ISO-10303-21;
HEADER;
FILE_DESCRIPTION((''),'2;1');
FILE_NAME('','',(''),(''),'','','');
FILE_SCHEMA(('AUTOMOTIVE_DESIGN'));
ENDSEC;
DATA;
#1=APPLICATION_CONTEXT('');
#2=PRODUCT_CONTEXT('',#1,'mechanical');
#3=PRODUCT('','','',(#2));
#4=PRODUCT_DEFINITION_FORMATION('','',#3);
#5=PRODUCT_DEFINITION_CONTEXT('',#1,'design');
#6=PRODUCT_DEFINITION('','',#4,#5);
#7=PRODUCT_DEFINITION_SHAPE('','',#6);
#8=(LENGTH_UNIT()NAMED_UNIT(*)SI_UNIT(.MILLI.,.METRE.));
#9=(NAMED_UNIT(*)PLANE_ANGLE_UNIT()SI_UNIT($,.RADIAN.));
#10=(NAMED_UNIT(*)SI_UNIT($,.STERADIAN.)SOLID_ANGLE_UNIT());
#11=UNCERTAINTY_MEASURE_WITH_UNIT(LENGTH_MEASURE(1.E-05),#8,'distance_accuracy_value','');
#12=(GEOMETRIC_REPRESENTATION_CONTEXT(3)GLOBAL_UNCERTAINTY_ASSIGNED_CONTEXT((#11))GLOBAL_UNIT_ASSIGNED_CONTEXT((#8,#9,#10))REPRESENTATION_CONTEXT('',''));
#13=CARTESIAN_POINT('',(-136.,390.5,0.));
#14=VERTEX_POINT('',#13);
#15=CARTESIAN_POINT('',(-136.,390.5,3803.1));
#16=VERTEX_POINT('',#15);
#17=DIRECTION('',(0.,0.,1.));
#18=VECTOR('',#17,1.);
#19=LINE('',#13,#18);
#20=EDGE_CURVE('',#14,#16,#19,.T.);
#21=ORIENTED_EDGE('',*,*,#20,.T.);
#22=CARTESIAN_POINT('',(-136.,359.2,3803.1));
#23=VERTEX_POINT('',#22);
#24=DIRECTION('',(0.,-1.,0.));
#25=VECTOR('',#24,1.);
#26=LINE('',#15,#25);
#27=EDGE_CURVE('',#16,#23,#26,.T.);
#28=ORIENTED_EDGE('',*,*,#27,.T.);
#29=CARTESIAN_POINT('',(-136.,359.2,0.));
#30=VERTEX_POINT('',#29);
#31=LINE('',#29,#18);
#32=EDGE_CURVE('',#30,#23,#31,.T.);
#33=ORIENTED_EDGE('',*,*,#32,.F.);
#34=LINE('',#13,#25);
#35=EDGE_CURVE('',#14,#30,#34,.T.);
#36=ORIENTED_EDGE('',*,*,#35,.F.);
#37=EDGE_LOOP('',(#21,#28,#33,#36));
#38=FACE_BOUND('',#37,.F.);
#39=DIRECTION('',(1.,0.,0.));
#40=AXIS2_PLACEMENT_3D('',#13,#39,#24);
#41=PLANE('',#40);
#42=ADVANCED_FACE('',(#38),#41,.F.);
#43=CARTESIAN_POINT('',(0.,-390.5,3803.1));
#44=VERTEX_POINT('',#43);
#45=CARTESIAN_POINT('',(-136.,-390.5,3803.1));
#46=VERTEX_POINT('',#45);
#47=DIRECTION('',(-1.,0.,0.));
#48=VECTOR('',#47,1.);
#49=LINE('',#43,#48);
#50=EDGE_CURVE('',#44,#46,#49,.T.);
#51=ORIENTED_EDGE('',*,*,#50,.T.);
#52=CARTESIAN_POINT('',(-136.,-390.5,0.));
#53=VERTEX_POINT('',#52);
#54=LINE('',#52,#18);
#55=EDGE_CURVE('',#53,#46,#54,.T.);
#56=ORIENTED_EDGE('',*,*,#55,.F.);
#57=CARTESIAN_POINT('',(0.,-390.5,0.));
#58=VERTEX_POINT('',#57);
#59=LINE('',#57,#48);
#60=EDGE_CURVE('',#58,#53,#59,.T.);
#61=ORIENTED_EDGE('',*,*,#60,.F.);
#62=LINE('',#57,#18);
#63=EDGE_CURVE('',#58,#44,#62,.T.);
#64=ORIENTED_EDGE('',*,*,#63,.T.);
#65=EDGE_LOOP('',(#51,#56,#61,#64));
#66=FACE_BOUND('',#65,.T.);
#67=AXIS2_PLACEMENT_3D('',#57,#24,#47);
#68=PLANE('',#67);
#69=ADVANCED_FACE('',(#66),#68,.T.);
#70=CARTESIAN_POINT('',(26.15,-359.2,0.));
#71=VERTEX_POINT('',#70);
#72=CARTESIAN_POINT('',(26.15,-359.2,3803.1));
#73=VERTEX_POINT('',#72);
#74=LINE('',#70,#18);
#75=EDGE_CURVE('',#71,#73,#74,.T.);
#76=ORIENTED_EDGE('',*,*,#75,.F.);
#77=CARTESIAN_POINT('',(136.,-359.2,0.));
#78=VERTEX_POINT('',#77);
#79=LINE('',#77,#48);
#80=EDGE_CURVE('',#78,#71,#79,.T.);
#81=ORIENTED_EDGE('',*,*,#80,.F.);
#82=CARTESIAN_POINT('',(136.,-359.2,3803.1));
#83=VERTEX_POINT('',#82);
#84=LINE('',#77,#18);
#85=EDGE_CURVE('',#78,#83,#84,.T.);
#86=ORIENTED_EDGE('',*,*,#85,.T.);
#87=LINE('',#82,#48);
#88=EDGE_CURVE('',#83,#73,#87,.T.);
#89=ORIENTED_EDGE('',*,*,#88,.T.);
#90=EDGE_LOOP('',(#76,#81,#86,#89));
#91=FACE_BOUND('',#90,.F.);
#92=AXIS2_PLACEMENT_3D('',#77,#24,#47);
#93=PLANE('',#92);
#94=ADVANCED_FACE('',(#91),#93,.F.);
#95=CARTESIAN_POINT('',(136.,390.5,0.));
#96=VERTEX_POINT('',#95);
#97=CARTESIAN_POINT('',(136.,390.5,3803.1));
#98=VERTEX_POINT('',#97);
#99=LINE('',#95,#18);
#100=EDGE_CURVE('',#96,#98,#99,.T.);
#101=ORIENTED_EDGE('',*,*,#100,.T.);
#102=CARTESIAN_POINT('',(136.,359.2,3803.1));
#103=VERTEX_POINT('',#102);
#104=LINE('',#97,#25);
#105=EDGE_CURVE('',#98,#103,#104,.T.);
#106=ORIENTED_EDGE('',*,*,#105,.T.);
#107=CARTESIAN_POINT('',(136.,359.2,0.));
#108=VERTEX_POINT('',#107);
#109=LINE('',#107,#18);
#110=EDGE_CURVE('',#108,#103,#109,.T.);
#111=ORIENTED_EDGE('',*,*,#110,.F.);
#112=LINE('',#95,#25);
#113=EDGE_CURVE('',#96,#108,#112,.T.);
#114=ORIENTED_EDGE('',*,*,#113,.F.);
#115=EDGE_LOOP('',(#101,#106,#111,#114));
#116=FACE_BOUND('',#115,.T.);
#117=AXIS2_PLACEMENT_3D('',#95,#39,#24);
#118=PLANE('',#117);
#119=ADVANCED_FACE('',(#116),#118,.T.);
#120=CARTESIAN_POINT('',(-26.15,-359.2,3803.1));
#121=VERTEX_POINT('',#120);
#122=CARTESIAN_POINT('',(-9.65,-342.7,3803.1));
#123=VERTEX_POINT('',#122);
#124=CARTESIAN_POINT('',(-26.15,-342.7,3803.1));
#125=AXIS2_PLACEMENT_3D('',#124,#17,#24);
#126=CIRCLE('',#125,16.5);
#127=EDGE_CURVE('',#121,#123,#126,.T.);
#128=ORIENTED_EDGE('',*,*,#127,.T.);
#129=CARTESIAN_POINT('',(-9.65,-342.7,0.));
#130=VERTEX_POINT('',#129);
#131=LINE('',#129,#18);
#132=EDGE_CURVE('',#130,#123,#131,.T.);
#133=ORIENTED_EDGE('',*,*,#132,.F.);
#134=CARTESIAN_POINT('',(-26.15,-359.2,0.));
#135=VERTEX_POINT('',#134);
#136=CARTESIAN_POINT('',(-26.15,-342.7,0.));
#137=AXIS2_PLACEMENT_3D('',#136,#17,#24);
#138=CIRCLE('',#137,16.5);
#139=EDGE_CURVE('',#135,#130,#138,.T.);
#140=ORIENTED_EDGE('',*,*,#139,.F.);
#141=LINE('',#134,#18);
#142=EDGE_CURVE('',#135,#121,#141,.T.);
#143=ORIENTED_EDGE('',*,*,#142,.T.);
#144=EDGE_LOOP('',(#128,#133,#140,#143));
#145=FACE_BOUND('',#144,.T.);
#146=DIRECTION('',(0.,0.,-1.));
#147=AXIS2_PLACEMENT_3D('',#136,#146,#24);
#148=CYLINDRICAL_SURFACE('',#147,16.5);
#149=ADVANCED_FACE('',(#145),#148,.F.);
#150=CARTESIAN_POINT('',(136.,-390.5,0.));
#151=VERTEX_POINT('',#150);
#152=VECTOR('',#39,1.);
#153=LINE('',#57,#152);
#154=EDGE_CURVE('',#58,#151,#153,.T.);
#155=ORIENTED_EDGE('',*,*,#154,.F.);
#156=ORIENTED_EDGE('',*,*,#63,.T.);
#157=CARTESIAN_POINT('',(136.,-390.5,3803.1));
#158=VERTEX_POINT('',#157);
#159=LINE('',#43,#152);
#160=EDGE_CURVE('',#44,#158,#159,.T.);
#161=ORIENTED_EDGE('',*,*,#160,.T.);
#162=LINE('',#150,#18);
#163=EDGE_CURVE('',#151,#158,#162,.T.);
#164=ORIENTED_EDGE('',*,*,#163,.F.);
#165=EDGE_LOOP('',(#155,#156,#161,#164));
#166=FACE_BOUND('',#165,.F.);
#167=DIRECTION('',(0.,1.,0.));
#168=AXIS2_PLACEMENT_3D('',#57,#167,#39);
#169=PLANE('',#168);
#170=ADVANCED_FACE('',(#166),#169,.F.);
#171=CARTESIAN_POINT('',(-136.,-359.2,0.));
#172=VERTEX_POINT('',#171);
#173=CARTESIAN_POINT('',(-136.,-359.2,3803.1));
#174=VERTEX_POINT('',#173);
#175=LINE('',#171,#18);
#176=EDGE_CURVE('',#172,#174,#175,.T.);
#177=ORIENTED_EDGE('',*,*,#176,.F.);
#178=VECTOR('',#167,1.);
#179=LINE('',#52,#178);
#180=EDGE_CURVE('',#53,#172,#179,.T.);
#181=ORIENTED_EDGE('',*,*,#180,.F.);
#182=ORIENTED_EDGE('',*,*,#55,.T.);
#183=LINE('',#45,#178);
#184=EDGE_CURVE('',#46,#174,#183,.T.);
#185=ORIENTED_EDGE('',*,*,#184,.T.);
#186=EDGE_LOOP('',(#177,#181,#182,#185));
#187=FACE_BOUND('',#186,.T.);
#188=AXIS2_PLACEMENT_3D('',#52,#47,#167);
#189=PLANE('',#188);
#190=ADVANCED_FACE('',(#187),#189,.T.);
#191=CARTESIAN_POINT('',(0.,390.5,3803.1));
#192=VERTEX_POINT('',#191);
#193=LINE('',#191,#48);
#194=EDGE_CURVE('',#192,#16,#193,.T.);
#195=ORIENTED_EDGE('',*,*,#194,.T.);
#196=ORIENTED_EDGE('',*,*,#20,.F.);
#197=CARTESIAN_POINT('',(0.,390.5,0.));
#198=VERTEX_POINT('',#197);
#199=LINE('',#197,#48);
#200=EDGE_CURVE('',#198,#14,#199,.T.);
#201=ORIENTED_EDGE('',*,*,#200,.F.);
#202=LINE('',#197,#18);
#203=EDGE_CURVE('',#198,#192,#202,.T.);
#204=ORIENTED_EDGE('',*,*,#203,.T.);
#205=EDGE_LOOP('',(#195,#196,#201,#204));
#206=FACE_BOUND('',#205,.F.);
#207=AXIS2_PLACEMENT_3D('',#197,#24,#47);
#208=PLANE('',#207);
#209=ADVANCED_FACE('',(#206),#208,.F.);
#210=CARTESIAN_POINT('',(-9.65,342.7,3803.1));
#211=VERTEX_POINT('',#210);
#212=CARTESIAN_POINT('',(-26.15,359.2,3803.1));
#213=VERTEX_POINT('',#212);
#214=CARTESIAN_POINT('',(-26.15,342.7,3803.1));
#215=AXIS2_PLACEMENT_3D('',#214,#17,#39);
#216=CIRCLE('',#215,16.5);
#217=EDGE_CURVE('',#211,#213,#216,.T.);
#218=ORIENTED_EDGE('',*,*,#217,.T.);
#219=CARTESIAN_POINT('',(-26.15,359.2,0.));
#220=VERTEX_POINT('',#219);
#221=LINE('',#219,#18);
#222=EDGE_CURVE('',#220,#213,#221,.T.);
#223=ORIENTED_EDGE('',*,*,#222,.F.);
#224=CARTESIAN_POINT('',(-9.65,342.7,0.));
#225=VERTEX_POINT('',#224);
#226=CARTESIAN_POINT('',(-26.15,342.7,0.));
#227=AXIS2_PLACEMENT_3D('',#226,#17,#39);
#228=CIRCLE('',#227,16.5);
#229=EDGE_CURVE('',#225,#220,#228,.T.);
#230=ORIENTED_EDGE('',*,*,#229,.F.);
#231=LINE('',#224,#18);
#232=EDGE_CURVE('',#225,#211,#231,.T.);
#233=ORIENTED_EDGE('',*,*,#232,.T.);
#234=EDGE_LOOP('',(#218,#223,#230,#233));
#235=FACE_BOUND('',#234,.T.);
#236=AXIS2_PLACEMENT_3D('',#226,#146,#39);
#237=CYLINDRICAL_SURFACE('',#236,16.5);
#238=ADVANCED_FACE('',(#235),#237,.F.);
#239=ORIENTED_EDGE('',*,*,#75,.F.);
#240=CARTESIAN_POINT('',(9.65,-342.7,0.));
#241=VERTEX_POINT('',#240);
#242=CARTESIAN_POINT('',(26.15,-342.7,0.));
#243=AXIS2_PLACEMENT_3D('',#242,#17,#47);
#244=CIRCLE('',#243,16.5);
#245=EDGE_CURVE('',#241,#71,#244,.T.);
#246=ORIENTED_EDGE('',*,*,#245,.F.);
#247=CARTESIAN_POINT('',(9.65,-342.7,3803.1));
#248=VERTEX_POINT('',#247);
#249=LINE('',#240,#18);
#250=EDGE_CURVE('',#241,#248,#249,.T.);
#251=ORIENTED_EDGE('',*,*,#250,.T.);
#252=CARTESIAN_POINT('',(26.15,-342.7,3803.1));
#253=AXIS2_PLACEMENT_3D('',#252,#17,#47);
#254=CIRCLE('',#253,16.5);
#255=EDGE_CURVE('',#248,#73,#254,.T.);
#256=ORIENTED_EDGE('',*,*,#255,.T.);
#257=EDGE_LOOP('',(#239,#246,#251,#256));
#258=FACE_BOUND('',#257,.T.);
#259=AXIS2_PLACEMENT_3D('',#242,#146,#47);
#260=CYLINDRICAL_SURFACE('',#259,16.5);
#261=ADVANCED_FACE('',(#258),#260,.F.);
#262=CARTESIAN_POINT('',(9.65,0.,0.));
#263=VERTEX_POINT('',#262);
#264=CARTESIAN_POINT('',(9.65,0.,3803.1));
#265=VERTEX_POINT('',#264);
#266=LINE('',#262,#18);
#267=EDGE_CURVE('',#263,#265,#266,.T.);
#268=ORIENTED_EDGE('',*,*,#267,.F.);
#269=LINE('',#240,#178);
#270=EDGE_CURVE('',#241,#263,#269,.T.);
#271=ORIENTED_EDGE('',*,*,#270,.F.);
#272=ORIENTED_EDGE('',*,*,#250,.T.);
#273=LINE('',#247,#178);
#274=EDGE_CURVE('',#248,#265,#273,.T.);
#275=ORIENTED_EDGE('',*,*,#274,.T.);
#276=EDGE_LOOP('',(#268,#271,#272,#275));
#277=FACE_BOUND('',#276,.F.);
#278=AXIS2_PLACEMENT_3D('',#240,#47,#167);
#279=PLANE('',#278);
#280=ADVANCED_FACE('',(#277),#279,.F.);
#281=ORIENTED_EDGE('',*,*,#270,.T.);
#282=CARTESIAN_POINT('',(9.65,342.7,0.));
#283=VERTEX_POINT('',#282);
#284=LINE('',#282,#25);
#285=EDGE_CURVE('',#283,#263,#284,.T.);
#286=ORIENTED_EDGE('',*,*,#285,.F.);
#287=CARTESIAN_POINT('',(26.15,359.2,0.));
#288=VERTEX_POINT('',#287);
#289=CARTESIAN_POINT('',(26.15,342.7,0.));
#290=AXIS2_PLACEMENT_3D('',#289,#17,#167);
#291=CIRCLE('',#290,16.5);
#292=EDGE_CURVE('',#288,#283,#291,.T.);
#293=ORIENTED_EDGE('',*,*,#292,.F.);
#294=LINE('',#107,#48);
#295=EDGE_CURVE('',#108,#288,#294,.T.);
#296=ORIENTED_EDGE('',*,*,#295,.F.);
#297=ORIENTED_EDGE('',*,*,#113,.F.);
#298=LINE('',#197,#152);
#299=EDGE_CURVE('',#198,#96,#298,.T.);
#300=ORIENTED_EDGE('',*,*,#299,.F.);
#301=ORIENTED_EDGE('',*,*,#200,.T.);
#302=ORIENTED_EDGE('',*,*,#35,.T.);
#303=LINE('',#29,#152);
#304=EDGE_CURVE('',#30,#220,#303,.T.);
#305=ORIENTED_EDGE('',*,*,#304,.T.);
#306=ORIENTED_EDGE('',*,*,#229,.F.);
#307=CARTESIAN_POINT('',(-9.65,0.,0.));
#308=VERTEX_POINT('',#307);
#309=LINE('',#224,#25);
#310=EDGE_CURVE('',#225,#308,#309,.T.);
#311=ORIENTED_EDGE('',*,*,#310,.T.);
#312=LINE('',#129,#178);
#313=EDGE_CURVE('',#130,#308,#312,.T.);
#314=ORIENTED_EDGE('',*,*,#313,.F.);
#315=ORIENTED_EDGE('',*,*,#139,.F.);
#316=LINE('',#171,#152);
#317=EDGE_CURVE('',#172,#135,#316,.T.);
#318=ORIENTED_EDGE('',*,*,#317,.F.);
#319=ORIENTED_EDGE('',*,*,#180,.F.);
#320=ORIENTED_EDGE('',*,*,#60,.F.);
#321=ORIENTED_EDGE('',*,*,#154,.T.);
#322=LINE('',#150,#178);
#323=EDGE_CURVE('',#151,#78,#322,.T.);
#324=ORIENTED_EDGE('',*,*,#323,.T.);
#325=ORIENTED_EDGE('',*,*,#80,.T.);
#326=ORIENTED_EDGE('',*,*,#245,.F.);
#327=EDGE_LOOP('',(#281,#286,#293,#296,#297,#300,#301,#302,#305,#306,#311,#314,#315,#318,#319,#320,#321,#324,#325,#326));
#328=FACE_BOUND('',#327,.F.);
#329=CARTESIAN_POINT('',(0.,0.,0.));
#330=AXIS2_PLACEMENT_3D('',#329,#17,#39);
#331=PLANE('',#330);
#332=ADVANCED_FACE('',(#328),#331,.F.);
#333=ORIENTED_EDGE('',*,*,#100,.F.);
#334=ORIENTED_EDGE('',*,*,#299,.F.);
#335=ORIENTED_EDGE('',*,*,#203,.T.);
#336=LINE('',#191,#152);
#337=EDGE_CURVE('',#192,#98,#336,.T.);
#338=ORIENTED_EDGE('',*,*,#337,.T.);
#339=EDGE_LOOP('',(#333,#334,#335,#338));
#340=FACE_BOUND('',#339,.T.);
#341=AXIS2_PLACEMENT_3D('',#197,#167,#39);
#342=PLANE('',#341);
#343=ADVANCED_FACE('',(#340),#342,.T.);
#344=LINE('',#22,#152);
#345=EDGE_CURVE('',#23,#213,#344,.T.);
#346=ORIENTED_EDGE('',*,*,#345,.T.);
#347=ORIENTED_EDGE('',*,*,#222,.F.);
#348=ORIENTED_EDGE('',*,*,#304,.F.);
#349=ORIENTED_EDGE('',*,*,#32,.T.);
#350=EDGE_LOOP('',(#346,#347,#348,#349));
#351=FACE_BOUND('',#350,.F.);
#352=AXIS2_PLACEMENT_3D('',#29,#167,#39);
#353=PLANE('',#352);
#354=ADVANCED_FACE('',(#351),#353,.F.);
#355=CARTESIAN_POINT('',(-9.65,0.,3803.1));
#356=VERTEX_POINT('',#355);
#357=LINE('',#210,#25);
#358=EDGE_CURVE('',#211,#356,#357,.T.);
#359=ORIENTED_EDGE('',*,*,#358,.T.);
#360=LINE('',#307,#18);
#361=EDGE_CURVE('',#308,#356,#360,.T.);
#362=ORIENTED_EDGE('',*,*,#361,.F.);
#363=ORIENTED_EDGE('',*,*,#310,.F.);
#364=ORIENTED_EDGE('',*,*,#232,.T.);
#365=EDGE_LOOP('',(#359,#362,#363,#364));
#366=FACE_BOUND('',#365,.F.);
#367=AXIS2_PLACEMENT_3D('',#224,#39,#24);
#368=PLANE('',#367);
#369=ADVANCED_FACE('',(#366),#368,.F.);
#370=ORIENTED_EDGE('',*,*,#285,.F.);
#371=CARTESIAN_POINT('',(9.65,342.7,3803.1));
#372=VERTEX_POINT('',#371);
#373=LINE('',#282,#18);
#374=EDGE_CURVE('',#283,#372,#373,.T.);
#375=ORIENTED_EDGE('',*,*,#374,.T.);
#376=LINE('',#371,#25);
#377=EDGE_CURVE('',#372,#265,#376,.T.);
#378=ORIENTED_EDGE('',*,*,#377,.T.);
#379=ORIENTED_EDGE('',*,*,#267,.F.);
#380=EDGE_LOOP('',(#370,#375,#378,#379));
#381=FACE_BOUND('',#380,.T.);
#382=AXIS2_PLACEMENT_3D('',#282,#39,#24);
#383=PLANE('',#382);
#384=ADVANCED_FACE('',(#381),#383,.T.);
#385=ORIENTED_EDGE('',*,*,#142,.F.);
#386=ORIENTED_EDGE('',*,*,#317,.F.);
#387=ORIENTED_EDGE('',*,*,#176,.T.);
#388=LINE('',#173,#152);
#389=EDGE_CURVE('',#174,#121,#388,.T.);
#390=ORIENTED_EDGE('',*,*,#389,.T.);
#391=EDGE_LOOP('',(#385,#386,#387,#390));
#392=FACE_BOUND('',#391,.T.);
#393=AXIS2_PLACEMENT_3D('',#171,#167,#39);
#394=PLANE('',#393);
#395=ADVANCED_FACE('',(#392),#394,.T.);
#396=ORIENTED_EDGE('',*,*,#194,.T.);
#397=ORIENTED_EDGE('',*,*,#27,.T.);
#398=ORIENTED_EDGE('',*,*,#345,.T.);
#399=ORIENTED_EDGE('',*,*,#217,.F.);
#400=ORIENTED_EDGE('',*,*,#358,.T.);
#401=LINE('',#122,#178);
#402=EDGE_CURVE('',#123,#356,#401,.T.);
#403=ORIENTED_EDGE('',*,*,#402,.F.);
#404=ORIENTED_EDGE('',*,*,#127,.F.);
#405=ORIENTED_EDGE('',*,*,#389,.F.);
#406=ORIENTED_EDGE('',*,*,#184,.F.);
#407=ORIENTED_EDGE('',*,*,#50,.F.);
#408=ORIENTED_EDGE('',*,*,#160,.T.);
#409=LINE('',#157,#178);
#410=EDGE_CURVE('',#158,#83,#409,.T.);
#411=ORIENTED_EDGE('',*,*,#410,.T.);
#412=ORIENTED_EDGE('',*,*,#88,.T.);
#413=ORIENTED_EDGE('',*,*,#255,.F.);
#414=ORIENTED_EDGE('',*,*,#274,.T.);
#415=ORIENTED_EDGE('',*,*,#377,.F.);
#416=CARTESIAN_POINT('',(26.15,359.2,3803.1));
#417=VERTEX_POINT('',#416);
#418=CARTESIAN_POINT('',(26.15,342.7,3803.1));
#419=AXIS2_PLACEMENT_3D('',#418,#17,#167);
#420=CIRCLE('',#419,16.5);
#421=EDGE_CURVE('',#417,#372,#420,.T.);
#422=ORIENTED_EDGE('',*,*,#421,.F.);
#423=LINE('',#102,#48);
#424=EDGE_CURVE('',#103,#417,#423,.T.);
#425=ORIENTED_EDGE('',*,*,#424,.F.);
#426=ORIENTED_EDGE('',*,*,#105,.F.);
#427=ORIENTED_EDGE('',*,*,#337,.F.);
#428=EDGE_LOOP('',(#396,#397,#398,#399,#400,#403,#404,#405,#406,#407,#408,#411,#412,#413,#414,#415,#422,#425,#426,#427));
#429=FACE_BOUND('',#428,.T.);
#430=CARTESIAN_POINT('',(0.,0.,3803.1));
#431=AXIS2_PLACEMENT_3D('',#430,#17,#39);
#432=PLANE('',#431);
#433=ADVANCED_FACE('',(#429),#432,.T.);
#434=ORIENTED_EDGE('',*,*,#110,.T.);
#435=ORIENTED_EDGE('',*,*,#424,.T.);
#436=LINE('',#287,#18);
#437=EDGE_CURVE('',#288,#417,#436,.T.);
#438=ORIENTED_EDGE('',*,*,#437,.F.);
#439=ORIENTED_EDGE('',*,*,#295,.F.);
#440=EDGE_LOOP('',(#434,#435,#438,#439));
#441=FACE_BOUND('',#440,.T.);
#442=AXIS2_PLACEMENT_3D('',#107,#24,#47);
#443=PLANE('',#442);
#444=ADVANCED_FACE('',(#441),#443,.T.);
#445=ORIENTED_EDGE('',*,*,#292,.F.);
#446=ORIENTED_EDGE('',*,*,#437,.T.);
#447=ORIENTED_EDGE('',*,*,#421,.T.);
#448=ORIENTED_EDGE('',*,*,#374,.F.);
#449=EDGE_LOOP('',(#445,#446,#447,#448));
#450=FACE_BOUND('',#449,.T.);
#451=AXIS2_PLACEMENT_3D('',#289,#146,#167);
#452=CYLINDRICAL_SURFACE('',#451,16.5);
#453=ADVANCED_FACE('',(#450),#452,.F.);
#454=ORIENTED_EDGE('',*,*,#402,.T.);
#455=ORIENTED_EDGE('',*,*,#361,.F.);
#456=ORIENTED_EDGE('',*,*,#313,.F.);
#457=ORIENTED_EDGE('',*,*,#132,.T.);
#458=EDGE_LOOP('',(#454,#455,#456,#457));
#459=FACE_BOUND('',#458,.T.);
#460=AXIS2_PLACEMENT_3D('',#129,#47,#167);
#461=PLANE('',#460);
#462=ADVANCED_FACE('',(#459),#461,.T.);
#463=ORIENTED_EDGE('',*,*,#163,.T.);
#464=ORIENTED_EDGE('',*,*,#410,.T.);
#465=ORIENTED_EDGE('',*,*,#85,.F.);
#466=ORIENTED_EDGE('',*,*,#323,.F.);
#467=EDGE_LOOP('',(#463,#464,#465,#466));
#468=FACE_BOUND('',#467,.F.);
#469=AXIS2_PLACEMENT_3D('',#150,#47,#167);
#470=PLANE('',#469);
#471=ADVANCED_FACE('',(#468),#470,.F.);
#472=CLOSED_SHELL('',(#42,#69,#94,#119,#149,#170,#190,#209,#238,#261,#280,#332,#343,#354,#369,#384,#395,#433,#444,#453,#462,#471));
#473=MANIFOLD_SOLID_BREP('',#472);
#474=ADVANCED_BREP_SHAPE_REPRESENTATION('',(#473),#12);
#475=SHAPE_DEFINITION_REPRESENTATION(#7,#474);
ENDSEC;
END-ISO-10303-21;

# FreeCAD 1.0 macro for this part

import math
import FreeCAD as App
import Part
import Sketcher

doc = App.newDocument("Part")
body = doc.addObject("PartDesign::Body", "Body")

# Sketch on XY plane
sketch1 = body.newObject("Sketcher::SketchObject", "Sketch")
sketch1.AttachmentSupport = (doc.getObject("XY_Plane"), [""])
sketch1.MapMode = "FlatFace"
sketch1.addGeometry(Part.LineSegment(App.Vector(-136, -359, 0), App.Vector(-136, -390, 0)), False)
sketch1.addGeometry(Part.LineSegment(App.Vector(-136, -390, 0), App.Vector(136, -390, 0)), False)
sketch1.addGeometry(Part.LineSegment(App.Vector(136, -390, 0), App.Vector(136, -359, 0)), False)
sketch1.addGeometry(Part.LineSegment(App.Vector(136, -359, 0), App.Vector(26, -359, 0)), False)
sketch1.addGeometry(Part.ArcOfCircle(Part.Circle(App.Vector(26, -343, 0), App.Vector(0, 0, 1), 16), math.radians(180), math.radians(270)), False)
sketch1.addGeometry(Part.LineSegment(App.Vector(10, -343, 0), App.Vector(10, 343, 0)), False)
sketch1.addGeometry(Part.ArcOfCircle(Part.Circle(App.Vector(26, 343, 0), App.Vector(0, 0, 1), 16), math.radians(90), math.radians(180)), False)
sketch1.addGeometry(Part.LineSegment(App.Vector(26, 359, 0), App.Vector(136, 359, 0)), False)
sketch1.addGeometry(Part.LineSegment(App.Vector(136, 359, 0), App.Vector(136, 390, 0)), False)
sketch1.addGeometry(Part.LineSegment(App.Vector(136, 390, 0), App.Vector(-136, 390, 0)), False)
sketch1.addGeometry(Part.LineSegment(App.Vector(-136, 390, 0), App.Vector(-136, 359, 0)), False)
sketch1.addGeometry(Part.LineSegment(App.Vector(-136, 359, 0), App.Vector(-26, 359, 0)), False)
sketch1.addGeometry(Part.ArcOfCircle(Part.Circle(App.Vector(-26, 343, 0), App.Vector(0, 0, 1), 16), math.radians(0), math.radians(90)), False)
sketch1.addGeometry(Part.LineSegment(App.Vector(-10, 343, 0), App.Vector(-10, -343, 0)), False)
sketch1.addGeometry(Part.ArcOfCircle(Part.Circle(App.Vector(-26, -343, 0), App.Vector(0, 0, 1), 16), math.radians(-90), math.radians(0)), False)
sketch1.addGeometry(Part.LineSegment(App.Vector(-26, -359, 0), App.Vector(-136, -359, 0)), False)
sketch1.addConstraint(Sketcher.Constraint("Coincident", 0, 2, 1, 1))
sketch1.addConstraint(Sketcher.Constraint("Coincident", 1, 2, 2, 1))
sketch1.addConstraint(Sketcher.Constraint("Coincident", 2, 2, 3, 1))
sketch1.addConstraint(Sketcher.Constraint("Tangent", 3, 2, 4, 2))
sketch1.addConstraint(Sketcher.Constraint("Tangent", 4, 1, 5, 1))
sketch1.addConstraint(Sketcher.Constraint("Tangent", 5, 2, 6, 2))
sketch1.addConstraint(Sketcher.Constraint("Tangent", 6, 1, 7, 1))
sketch1.addConstraint(Sketcher.Constraint("Coincident", 7, 2, 8, 1))
sketch1.addConstraint(Sketcher.Constraint("Coincident", 8, 2, 9, 1))
sketch1.addConstraint(Sketcher.Constraint("Coincident", 9, 2, 10, 1))
sketch1.addConstraint(Sketcher.Constraint("Coincident", 10, 2, 11, 1))
sketch1.addConstraint(Sketcher.Constraint("Tangent", 11, 2, 12, 2))
sketch1.addConstraint(Sketcher.Constraint("Tangent", 12, 1, 13, 1))
sketch1.addConstraint(Sketcher.Constraint("Tangent", 13, 2, 14, 2))
sketch1.addConstraint(Sketcher.Constraint("Tangent", 14, 1, 15, 1))
sketch1.addConstraint(Sketcher.Constraint("Coincident", 15, 2, 0, 1))
sketch1.addConstraint(Sketcher.Constraint("Vertical", 0))
sketch1.addConstraint(Sketcher.Constraint("Horizontal", 1))
sketch1.addConstraint(Sketcher.Constraint("Vertical", 2))
sketch1.addConstraint(Sketcher.Constraint("Horizontal", 3))
sketch1.addConstraint(Sketcher.Constraint("Vertical", 5))
sketch1.addConstraint(Sketcher.Constraint("Horizontal", 7))
sketch1.addConstraint(Sketcher.Constraint("Vertical", 8))
sketch1.addConstraint(Sketcher.Constraint("Horizontal", 9))
sketch1.addConstraint(Sketcher.Constraint("Vertical", 10))
sketch1.addConstraint(Sketcher.Constraint("Horizontal", 11))
sketch1.addConstraint(Sketcher.Constraint("Vertical", 13))
sketch1.addConstraint(Sketcher.Constraint("Horizontal", 15))
sketch1.addConstraint(Sketcher.Constraint("Equal", 4, 6))
sketch1.addConstraint(Sketcher.Constraint("Equal", 6, 12))
sketch1.addConstraint(Sketcher.Constraint("Equal", 12, 14))
sketch1.addConstraint(Sketcher.Constraint("Symmetric", 4, 3, 12, 3, -1, 1))
sketch1.addConstraint(Sketcher.Constraint("Symmetric", 0, 2, 8, 2, -1, 1))
sketch1.addConstraint(Sketcher.Constraint("Symmetric", 7, 2, 10, 2, -2))
sketch1.addConstraint(Sketcher.Constraint("Symmetric", 2, 2, 15, 2, -2))
sketch1.addConstraint(Sketcher.Constraint("Radius", 4, 16.5))
sketch1.addConstraint(Sketcher.Constraint("DistanceY", 0, 2, 0, 1, 31.3))
sketch1.addConstraint(Sketcher.Constraint("DistanceX", 0, 2, -1, 1, 136.0))
sketch1.addConstraint(Sketcher.Constraint("DistanceY", 0, 2, -1, 1, 390.5))
sketch1.addConstraint(Sketcher.Constraint("DistanceX", -1, 1, 4, 1, 9.65))
pad1 = body.newObject("PartDesign::Pad", "Pad")
pad1.Profile = sketch1
pad1.Length = 3803.1

doc.recompute()
